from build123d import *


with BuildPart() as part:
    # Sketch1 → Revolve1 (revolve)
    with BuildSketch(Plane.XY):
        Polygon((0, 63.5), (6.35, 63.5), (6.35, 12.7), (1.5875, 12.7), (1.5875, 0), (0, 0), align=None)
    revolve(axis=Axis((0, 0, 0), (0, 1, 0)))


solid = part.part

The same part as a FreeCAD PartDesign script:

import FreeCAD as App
import Part
import Sketcher
from FreeCAD import Vector
Q = App.Units.Quantity


def add_polygon(sketch, points):
    """Adds a closed chain of lines whose ends are joined by coincident constraints."""
    first, n = sketch.GeometryCount, len(points)
    for a, b in zip(points, points[1:] + points[:1]):
        sketch.addGeometry(Part.LineSegment(App.Vector(*a, 0), App.Vector(*b, 0)), False)
    for i in range(n):
        sketch.addConstraint(Sketcher.Constraint("Coincident", first + i, 2, first + (i + 1) % n, 1))

doc = App.newDocument("Part")
body = doc.addObject("PartDesign::Body", "Body")

# Sketch on XY plane
sketch1 = body.newObject("Sketcher::SketchObject", "Sketch")
sketch1.AttachmentSupport = (doc.getObject("XY_Plane"), [""])
sketch1.MapMode = "FlatFace"
add_polygon(sketch1, [(6.3, 63.5), (0, 63.5), (0, 0), (1.6, 0), (1.6, 12.7), (6.3, 12.7)])  # lines 0-5
sketch1.addConstraint(Sketcher.Constraint("Horizontal", 0))
sketch1.addConstraint(Sketcher.Constraint("Vertical", 1))
sketch1.addConstraint(Sketcher.Constraint("Horizontal", 2))
sketch1.addConstraint(Sketcher.Constraint("Vertical", 3))
sketch1.addConstraint(Sketcher.Constraint("Horizontal", 4))
sketch1.addConstraint(Sketcher.Constraint("Vertical", 5))
sketch1.addConstraint(Sketcher.Constraint("Coincident", 1, 2, -1, 1))
sketch1.addConstraint(Sketcher.Constraint("DistanceY", 5, 1, 5, 2, Q("2 in")))
sketch1.addConstraint(Sketcher.Constraint("DistanceY", 1, 2, 1, 1, Q("2.5 in")))
sketch1.addConstraint(Sketcher.Constraint("DistanceX", 0, 2, 0, 1, Q("0.25 in")))
sketch1.addConstraint(Sketcher.Constraint("DistanceX", 2, 1, 2, 2, Q("0.0625 in")))
revolution = body.newObject("PartDesign::Revolution", "Revolution")
revolution.Profile = sketch1
revolution.ReferenceAxis = (sketch1, ["V_Axis"])
revolution.Angle = 360

doc.recompute()
